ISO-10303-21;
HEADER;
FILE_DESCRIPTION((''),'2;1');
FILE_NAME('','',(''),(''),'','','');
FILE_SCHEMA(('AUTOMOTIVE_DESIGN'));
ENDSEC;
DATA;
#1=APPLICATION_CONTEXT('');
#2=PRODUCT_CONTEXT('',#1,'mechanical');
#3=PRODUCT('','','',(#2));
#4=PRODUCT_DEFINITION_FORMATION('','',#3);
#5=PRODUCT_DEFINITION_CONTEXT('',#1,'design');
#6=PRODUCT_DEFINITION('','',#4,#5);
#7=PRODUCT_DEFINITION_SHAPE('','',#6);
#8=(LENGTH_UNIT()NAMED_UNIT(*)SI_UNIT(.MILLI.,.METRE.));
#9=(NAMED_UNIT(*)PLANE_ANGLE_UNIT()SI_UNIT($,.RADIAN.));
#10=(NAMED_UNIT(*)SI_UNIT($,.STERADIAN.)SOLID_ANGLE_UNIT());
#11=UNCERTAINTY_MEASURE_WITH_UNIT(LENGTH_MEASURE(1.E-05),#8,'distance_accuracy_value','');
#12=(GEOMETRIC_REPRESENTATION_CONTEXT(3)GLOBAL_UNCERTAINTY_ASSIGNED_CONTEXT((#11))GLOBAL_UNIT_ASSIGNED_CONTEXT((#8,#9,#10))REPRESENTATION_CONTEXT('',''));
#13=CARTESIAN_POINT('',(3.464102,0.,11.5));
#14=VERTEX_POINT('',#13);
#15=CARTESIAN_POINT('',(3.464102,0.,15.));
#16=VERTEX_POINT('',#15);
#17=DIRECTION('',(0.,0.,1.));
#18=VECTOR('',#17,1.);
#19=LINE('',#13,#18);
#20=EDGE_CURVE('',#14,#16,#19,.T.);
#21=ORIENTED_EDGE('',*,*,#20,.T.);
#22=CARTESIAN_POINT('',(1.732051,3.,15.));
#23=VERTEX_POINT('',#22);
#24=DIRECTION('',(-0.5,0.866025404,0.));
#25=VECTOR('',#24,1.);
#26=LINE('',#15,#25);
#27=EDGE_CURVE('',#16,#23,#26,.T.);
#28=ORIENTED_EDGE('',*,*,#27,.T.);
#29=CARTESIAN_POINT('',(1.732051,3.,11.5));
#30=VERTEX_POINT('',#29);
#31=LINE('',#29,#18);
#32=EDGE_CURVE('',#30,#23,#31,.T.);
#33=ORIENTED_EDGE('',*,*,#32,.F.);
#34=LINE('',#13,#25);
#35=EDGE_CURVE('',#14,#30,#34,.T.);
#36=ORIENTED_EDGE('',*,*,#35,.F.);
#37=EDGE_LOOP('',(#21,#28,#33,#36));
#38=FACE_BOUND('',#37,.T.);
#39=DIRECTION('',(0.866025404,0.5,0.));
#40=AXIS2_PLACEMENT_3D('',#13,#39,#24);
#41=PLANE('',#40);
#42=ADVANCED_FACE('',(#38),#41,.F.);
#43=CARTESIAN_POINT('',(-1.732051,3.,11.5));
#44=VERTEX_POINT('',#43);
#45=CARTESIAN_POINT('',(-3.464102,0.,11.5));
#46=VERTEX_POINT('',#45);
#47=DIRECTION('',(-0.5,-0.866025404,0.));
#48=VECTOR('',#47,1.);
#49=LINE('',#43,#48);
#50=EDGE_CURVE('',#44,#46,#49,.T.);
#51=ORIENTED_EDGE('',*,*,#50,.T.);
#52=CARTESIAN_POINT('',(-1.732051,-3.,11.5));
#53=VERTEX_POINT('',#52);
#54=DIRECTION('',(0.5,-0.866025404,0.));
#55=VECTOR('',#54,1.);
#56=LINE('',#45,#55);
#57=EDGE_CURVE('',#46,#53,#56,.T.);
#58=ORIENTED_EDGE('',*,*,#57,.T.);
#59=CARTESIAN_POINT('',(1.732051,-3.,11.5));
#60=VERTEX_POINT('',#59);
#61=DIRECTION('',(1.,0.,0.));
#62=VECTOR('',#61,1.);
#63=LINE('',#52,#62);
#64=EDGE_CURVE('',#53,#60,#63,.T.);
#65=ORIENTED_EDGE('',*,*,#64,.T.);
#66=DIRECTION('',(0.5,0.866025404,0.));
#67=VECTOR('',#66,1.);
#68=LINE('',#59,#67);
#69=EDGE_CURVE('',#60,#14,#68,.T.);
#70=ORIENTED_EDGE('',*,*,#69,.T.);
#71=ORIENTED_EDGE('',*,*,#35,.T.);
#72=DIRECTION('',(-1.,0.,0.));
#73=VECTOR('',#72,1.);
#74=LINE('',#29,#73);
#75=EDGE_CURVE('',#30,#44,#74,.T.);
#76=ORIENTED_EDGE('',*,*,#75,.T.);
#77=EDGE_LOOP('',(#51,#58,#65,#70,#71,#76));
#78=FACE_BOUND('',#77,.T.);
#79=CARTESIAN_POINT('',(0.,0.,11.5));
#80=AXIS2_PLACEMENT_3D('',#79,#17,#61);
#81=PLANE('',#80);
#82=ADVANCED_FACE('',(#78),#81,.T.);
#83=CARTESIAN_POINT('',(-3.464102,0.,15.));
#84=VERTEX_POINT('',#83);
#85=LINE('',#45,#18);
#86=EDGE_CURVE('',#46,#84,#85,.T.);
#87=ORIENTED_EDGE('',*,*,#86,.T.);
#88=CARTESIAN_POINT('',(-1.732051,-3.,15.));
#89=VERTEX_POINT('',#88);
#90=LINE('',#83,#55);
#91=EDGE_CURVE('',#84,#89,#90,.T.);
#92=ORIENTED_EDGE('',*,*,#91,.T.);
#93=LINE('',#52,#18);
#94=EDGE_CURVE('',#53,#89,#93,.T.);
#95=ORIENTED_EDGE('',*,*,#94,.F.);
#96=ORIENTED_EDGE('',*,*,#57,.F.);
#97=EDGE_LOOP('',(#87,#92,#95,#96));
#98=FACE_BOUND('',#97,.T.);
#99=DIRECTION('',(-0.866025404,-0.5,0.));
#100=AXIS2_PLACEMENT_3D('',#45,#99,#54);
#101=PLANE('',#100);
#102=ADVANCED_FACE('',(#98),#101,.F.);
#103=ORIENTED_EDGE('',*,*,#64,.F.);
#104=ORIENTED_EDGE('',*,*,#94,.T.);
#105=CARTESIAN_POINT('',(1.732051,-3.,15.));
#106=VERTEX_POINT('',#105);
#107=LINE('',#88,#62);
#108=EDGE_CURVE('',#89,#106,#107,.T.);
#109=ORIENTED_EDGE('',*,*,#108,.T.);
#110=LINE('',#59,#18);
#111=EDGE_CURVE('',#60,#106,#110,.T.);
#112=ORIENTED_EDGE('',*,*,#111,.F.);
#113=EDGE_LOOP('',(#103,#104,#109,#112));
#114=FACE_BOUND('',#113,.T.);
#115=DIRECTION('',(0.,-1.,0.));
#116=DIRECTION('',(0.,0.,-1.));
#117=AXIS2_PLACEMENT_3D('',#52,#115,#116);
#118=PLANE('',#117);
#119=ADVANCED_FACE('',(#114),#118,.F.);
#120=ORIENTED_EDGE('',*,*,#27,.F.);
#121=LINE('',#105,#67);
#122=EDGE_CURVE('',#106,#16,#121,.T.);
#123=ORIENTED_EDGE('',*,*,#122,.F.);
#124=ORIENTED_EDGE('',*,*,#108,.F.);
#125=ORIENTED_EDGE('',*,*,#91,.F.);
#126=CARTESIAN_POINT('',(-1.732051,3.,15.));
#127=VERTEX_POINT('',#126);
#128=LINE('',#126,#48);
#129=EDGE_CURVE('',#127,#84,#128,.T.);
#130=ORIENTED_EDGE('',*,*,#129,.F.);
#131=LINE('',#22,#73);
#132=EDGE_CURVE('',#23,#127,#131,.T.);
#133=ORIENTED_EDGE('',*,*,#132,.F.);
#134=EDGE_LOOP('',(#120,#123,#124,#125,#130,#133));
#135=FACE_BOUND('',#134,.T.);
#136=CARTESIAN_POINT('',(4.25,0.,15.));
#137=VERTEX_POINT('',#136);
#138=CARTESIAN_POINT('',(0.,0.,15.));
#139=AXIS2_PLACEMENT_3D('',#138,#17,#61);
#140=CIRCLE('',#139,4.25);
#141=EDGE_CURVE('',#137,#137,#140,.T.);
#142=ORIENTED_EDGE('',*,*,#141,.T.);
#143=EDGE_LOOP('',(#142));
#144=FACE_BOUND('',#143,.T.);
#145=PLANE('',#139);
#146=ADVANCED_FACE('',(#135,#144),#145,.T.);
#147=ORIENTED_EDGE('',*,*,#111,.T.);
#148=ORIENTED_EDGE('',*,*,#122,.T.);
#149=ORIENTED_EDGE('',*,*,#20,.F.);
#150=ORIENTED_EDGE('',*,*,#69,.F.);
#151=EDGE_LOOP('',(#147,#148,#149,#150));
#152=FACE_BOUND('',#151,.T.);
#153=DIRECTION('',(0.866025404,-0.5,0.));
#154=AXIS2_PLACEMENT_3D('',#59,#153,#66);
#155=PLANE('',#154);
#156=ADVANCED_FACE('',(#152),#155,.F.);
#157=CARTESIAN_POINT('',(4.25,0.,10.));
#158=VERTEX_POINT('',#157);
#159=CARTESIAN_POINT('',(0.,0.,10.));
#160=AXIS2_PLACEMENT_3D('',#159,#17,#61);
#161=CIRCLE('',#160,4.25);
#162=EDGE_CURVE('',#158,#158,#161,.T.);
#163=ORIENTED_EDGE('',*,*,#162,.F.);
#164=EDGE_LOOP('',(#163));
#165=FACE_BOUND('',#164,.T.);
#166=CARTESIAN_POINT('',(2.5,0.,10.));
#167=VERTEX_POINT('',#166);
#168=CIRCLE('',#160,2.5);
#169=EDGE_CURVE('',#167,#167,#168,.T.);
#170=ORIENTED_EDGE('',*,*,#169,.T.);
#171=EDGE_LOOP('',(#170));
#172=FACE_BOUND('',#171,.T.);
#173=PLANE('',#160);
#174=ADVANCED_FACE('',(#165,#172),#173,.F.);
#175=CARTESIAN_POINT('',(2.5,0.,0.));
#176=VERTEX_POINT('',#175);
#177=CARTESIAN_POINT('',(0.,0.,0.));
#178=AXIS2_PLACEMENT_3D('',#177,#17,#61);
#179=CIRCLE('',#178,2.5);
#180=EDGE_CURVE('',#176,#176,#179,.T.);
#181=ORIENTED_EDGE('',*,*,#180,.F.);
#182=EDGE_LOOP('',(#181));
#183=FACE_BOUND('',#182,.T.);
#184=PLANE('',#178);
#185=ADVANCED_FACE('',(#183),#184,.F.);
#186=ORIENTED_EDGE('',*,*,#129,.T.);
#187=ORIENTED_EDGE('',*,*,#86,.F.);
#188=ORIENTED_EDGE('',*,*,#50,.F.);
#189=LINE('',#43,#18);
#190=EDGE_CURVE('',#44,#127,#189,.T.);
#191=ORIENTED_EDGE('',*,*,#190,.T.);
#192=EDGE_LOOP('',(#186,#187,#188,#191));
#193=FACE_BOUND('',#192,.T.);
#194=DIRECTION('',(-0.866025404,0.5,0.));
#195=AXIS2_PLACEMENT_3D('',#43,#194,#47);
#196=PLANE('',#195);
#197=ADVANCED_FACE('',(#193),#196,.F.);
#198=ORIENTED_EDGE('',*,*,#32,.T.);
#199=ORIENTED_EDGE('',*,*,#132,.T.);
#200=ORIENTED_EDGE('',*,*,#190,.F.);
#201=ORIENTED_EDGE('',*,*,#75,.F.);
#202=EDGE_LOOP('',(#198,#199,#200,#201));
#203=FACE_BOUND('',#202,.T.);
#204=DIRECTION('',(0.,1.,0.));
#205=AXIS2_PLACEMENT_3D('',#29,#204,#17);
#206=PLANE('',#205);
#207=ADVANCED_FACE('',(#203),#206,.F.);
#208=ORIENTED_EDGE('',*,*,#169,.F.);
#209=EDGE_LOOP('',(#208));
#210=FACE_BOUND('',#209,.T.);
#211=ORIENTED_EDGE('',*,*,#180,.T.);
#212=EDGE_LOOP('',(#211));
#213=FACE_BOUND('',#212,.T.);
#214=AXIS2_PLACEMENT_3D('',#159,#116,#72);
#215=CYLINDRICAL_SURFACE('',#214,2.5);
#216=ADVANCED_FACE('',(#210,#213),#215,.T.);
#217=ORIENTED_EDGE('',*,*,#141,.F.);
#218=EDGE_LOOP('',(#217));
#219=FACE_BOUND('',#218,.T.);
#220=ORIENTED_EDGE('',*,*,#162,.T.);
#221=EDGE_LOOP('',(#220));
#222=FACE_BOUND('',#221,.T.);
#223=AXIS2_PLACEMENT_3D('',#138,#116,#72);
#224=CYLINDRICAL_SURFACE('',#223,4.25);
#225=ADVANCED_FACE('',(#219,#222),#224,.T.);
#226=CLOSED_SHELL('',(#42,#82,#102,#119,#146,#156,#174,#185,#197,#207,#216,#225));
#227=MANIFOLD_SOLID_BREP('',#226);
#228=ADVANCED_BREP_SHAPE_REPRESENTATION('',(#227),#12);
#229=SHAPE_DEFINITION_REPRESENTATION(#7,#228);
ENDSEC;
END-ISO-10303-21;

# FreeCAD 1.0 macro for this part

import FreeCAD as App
import Part
import Sketcher
Q = App.Units.Quantity

doc = App.newDocument("Part")
body = doc.addObject("PartDesign::Body", "Body")

# Sketch on XY plane
sketch1 = body.newObject("Sketcher::SketchObject", "Sketch")
sketch1.AttachmentSupport = (doc.getObject("XY_Plane"), [""])
sketch1.MapMode = "FlatFace"
sketch1.addGeometry(Part.Circle(App.Vector(0, 0, 0), App.Vector(0, 0, 1), 2.5), False)
sketch1.addConstraint(Sketcher.Constraint("Coincident", 0, 3, -1, 1))
sketch1.addConstraint(Sketcher.Constraint("Diameter", 0, 5.0))
pad1 = body.newObject("PartDesign::Pad", "Pad")
pad1.Profile = sketch1
pad1.Length = 10

# Sketch on XY plane
sketch2 = body.newObject("Sketcher::SketchObject", "Sketch001")
sketch2.AttachmentSupport = (doc.getObject("XY_Plane"), [""])
sketch2.MapMode = "FlatFace"
sketch2.AttachmentOffset = App.Placement(App.Vector(0, 0, 10), App.Rotation())
sketch2.addGeometry(Part.Circle(App.Vector(0, 0, 0), App.Vector(0, 0, 1), 4.2), False)
sketch2.addConstraint(Sketcher.Constraint("Coincident", 0, 3, -1, 1))
sketch2.addConstraint(Sketcher.Constraint("Diameter", 0, 8.5))
pad2 = body.newObject("PartDesign::Pad", "Pad001")
pad2.Profile = sketch2
pad2.Length = 5

# Sketch on XY plane
sketch3 = body.newObject("Sketcher::SketchObject", "Sketch002")
sketch3.AttachmentSupport = (doc.getObject("XY_Plane"), [""])
sketch3.MapMode = "FlatFace"
sketch3.AttachmentOffset = App.Placement(App.Vector(0, 0, 15), App.Rotation())
sketch3.addGeometry(Part.LineSegment(App.Vector(3.5, 0, 0), App.Vector(1.7, 3, 0)), False)
sketch3.addGeometry(Part.LineSegment(App.Vector(1.7, 3, 0), App.Vector(-1.7, 3, 0)), False)
sketch3.addGeometry(Part.LineSegment(App.Vector(-1.7, 3, 0), App.Vector(-3.5, 0, 0)), False)
sketch3.addGeometry(Part.LineSegment(App.Vector(-3.5, 0, 0), App.Vector(-1.7, -3, 0)), False)
sketch3.addGeometry(Part.LineSegment(App.Vector(-1.7, -3, 0), App.Vector(1.7, -3, 0)), False)
sketch3.addGeometry(Part.LineSegment(App.Vector(1.7, -3, 0), App.Vector(3.5, 0, 0)), False)
sketch3.addConstraint(Sketcher.Constraint("Coincident", 0, 2, 1, 1))
sketch3.addConstraint(Sketcher.Constraint("Coincident", 1, 2, 2, 1))
sketch3.addConstraint(Sketcher.Constraint("Coincident", 2, 2, 3, 1))
sketch3.addConstraint(Sketcher.Constraint("Coincident", 3, 2, 4, 1))
sketch3.addConstraint(Sketcher.Constraint("Coincident", 4, 2, 5, 1))
sketch3.addConstraint(Sketcher.Constraint("Coincident", 5, 2, 0, 1))
sketch3.addConstraint(Sketcher.Constraint("Horizontal", 1))
sketch3.addConstraint(Sketcher.Constraint("Horizontal", 4))
sketch3.addConstraint(Sketcher.Constraint("Symmetric", 0, 2, 3, 2, -1, 1))
sketch3.addConstraint(Sketcher.Constraint("Symmetric", 2, 2, 5, 2, -1, 1))
sketch3.addConstraint(Sketcher.Constraint("PointOnObject", 2, 2, -1))
sketch3.addConstraint(Sketcher.Constraint("Parallel", 2, 5))
sketch3.addConstraint(Sketcher.Constraint("Vertical", 1, 2, 3, 2))
sketch3.addConstraint(Sketcher.Constraint("Angle", 0, Q("120 deg")))
sketch3.addConstraint(Sketcher.Constraint("DistanceY", -1, 1, 0, 2, 3.0))
sketch3.addConstraint(Sketcher.Constraint("DistanceX", 1, 2, 1, 1, 3.464102))
pocket1 = body.newObject("PartDesign::Pocket", "Pocket")
pocket1.Profile = sketch3
pocket1.Length = 3.5

doc.recompute()
